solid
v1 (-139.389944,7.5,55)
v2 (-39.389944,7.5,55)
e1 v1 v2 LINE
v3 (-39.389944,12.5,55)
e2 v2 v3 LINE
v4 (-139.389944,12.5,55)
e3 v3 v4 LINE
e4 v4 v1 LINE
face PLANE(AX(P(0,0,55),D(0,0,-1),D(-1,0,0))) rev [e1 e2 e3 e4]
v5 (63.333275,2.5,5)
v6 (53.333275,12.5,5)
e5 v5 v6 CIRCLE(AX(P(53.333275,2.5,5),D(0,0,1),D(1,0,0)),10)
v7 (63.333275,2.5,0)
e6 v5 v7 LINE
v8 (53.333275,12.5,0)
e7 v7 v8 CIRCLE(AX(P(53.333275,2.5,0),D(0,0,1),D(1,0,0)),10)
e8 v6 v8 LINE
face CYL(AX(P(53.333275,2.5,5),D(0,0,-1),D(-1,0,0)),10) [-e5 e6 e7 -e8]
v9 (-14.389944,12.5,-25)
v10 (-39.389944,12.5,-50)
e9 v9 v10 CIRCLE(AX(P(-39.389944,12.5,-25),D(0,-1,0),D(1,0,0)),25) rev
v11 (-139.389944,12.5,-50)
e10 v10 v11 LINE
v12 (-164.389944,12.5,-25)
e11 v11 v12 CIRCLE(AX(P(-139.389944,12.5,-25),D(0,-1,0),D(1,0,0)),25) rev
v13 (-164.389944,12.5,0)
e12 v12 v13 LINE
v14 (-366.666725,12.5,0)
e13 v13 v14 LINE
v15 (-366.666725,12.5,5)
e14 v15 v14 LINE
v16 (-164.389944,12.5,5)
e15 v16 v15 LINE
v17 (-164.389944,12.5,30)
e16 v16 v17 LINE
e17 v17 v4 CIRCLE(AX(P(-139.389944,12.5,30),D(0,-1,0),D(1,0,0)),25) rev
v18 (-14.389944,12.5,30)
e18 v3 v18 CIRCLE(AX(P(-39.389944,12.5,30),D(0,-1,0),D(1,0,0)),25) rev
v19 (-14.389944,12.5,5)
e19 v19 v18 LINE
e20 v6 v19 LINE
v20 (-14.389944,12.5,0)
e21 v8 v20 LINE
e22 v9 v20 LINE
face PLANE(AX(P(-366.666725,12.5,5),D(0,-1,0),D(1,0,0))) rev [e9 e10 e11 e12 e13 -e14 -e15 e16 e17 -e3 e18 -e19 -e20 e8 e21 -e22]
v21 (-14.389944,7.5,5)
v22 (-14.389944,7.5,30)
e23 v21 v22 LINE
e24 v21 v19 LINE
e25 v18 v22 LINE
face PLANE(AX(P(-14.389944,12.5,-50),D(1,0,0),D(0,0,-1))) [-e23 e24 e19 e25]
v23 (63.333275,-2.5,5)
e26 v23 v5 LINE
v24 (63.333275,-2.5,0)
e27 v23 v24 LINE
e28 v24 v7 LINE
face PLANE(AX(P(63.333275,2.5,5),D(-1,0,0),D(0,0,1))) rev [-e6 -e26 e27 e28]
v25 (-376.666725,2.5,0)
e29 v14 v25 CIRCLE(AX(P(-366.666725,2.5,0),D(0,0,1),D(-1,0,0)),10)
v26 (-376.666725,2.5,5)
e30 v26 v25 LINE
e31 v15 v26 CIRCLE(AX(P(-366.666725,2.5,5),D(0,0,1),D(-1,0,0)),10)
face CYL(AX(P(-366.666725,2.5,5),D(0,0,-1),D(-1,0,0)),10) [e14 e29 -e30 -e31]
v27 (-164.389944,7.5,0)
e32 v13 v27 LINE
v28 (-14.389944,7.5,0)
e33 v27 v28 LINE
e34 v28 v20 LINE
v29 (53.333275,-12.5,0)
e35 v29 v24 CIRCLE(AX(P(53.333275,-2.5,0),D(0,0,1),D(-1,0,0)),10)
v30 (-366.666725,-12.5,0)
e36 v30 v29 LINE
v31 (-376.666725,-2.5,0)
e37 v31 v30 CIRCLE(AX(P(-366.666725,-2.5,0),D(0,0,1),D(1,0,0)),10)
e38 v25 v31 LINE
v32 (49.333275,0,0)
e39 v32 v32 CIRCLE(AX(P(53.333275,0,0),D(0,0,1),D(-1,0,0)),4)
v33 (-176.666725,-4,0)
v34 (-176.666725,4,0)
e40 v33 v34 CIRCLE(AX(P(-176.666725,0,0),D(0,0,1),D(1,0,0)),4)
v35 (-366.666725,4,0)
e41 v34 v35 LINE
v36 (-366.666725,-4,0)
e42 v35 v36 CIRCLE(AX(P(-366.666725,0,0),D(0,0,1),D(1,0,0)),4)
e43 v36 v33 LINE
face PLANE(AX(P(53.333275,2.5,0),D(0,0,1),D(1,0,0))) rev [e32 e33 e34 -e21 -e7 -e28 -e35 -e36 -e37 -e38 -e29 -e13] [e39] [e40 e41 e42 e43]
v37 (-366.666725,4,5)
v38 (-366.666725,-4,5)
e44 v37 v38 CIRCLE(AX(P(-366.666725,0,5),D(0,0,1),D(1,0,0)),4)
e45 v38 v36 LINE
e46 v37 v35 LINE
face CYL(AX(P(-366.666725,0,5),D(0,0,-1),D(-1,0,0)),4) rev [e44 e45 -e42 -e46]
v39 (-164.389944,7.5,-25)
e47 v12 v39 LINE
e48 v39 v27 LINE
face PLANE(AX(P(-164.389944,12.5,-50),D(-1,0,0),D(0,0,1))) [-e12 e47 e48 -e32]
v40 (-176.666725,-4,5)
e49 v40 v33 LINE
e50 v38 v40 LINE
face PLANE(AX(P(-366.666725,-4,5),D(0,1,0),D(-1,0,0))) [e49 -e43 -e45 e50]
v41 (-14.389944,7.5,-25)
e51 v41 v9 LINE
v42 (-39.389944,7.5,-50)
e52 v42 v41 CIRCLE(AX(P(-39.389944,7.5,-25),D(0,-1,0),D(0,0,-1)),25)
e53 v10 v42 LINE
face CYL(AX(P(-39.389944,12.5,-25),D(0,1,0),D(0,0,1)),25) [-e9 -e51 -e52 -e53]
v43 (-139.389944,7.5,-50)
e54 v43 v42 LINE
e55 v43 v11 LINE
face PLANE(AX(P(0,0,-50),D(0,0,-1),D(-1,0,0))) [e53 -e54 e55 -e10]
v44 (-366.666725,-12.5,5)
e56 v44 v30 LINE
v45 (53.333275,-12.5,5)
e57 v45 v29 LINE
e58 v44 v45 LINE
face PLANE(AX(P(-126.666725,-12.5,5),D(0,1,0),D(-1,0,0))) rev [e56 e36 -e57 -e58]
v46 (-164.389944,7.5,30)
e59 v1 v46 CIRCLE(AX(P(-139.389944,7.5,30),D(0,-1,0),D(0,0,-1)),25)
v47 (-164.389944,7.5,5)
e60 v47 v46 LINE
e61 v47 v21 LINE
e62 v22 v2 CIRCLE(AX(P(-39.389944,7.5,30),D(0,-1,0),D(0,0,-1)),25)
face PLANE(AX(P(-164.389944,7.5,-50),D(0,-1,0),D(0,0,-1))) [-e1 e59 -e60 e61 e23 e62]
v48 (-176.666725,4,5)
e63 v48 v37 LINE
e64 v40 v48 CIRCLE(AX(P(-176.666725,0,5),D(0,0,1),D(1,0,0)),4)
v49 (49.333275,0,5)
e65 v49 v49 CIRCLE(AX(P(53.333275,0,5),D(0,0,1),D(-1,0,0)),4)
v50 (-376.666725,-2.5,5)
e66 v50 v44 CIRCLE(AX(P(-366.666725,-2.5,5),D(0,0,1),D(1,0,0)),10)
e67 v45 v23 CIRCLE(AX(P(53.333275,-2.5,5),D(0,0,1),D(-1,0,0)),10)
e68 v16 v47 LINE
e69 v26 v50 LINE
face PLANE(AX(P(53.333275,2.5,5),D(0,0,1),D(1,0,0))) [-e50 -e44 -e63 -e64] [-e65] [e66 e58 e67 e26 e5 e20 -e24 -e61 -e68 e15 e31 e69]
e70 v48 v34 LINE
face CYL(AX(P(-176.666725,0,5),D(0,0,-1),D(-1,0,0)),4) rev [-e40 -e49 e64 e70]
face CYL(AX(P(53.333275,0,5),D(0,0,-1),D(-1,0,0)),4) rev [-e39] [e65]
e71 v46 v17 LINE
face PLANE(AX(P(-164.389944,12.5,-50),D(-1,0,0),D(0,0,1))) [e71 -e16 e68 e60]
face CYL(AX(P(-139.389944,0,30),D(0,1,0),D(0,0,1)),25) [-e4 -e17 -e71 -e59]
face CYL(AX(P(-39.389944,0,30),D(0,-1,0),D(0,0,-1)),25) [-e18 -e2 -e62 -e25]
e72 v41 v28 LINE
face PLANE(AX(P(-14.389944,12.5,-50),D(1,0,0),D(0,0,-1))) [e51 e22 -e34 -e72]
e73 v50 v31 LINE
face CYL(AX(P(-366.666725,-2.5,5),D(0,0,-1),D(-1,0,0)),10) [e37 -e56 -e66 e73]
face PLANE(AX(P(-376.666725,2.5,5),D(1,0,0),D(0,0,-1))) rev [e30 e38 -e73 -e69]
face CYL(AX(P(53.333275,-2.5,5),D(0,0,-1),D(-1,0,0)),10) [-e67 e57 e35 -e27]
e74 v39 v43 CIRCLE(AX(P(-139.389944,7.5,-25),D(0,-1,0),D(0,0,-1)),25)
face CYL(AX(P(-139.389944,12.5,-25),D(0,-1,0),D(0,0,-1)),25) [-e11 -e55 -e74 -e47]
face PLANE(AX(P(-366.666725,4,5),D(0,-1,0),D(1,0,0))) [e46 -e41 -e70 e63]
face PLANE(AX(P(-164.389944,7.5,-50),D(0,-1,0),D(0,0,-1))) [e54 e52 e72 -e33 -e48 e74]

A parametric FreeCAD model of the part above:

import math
import FreeCAD as App
import Part
import Sketcher

V = App.Vector


def edges_at(feature, points):
    """Names of the edges that pass closest to the given points."""
    edges = feature.Shape.Edges
    near = lambda p: min(range(len(edges)), key=lambda i: edges[i].distToShape(Part.Vertex(*p))[0])
    return sorted({f"Edge{near(p) + 1}" for p in points})


def add_polygon(sketch, points):
    """Adds a closed chain of lines whose ends are joined by coincident constraints."""
    first, n = sketch.GeometryCount, len(points)
    for a, b in zip(points, points[1:] + points[:1]):
        sketch.addGeometry(Part.LineSegment(App.Vector(*a, 0), App.Vector(*b, 0)), False)
    for i in range(n):
        sketch.addConstraint(Sketcher.Constraint("Coincident", first + i, 2, first + (i + 1) % n, 1))

doc = App.newDocument("Part")
body = doc.addObject("PartDesign::Body", "Body")

sketch1 = doc.addObject("Sketcher::SketchObject", "Sketch")
body.addObject(sketch1)
sketch1.AttachmentSupport = (doc.XY_Plane, [""])
sketch1.MapMode = "FlatFace"
sketch1.addGeometry([
    Part.LineSegment(V(53.3, 12.5, 0), V(-366.7, 12.5, 0)),
    Part.ArcOfCircle(Part.Circle(V(-366.7, 2.5, 0), V(0, 0, 1), 10), math.radians(90), math.radians(180)),
    Part.LineSegment(V(-376.7, 2.5, 0), V(-376.7, -2.5, 0)),
    Part.ArcOfCircle(Part.Circle(V(-366.7, -2.5, 0), V(0, 0, 1), 10), math.radians(180), math.radians(270)),
    Part.LineSegment(V(-366.7, -12.5, 0), V(53.3, -12.5, 0)),
    Part.ArcOfCircle(Part.Circle(V(53.3, -2.5, 0), V(0, 0, 1), 10), math.radians(-90), math.radians(0)),
    Part.LineSegment(V(63.3, -2.5, 0), V(63.3, 2.5, 0)),
    Part.ArcOfCircle(Part.Circle(V(53.3, 2.5, 0), V(0, 0, 1), 10), math.radians(0), math.radians(90)),
    Part.Circle(V(53.3, 0, 0), V(0, 0, 1), 4),
    Part.LineSegment(V(-366.7, 4, 0), V(-176.7, 4, 0)),
    Part.ArcOfCircle(Part.Circle(V(-176.7, 0, 0), V(0, 0, 1), 4), math.radians(-90), math.radians(90)),
    Part.LineSegment(V(-176.7, -4, 0), V(-366.7, -4, 0)),
    Part.ArcOfCircle(Part.Circle(V(-366.7, 0, 0), V(0, 0, 1), 4), math.radians(90), math.radians(270)),
], False)
sketch1.addConstraint([
    Sketcher.Constraint("Tangent", 0, 2, 1, 1),
    Sketcher.Constraint("Tangent", 1, 2, 2, 1),
    Sketcher.Constraint("Tangent", 2, 2, 3, 1),
    Sketcher.Constraint("Tangent", 3, 2, 4, 1),
    Sketcher.Constraint("Tangent", 4, 2, 5, 1),
    Sketcher.Constraint("Tangent", 5, 2, 6, 1),
    Sketcher.Constraint("Tangent", 6, 2, 7, 1),
    Sketcher.Constraint("Tangent", 7, 2, 0, 1),
    Sketcher.Constraint("Tangent", 9, 2, 10, 2),
    Sketcher.Constraint("Tangent", 10, 1, 11, 1),
    Sketcher.Constraint("Tangent", 11, 2, 12, 2),
    Sketcher.Constraint("Tangent", 12, 1, 9, 1),
    Sketcher.Constraint("Horizontal", 0),
    Sketcher.Constraint("Vertical", 2),
    Sketcher.Constraint("Horizontal", 4),
    Sketcher.Constraint("Vertical", 6),
    Sketcher.Constraint("Horizontal", 9),
    Sketcher.Constraint("Horizontal", 11),
    Sketcher.Constraint("Equal", 1, 3),
    Sketcher.Constraint("Equal", 3, 5),
    Sketcher.Constraint("Equal", 5, 7),
    Sketcher.Constraint("Equal", 8, 10),
    Sketcher.Constraint("PointOnObject", 8, 3, -1),
    Sketcher.Constraint("PointOnObject", 10, 3, -1),
    Sketcher.Constraint("Vertical", 7, 3, 8, 3),
    Sketcher.Constraint("Vertical", 3, 3, 12, 3),
    Sketcher.Constraint("Diameter", 8, 8.0),
    Sketcher.Constraint("Radius", 1, 10.0),
    Sketcher.Constraint("DistanceX", 0, 2, 0, 1, 420.0),
    Sketcher.Constraint("DistanceX", 9, 1, 9, 2, 190.0),
    Sketcher.Constraint("DistanceY", 2, 2, 2, 1, 5.0),
    Sketcher.Constraint("DistanceY", -1, 1, 1, 3, 2.5),
    Sketcher.Constraint("DistanceX", 1, 3, -1, 1, 366.666725),
])
pad1 = doc.addObject("PartDesign::Pad", "Pad")
body.addObject(pad1)
pad1.Profile = sketch1
pad1.Length = 5

sketch2 = doc.addObject("Sketcher::SketchObject", "Sketch001")
body.addObject(sketch2)
sketch2.AttachmentSupport = (doc.XY_Plane, [""])
sketch2.MapMode = "FlatFace"
sketch2.AttachmentOffset = App.Placement(V(0, 0, 5), App.Rotation())
add_polygon(sketch2, [(-164, 12), (-164, 8), (-14, 8), (-14, 12)])
sketch2.addConstraint([
    Sketcher.Constraint("Vertical", 0),
    Sketcher.Constraint("Horizontal", 1),
    Sketcher.Constraint("Vertical", 2),
    Sketcher.Constraint("Horizontal", 3),
    Sketcher.Constraint("DistanceX", 1, 1, 1, 2, 150.0),
    Sketcher.Constraint("DistanceY", 0, 2, 0, 1, 5.0),
    Sketcher.Constraint("DistanceY", -1, 1, 0, 2, 7.5),
    Sketcher.Constraint("DistanceX", 0, 2, -1, 1, 164.389944),
])
pad2 = doc.addObject("PartDesign::Pad", "Pad001")
body.addObject(pad2)
pad2.Profile = sketch2
pad2.Type = "TwoLengths"
pad2.Length = 50
pad2.Length2 = 55
doc.recompute()

fillet = doc.addObject("PartDesign::Fillet", "Fillet")
body.addObject(fillet)
fillet.Base = (pad2, edges_at(pad2, [
    (-14.39, 10, -50),
    (-164.39, 10, -50),
    (-164.39, 10, 55),
    (-14.39, 10, 55),
]))
fillet.Radius = 25

doc.recompute()
